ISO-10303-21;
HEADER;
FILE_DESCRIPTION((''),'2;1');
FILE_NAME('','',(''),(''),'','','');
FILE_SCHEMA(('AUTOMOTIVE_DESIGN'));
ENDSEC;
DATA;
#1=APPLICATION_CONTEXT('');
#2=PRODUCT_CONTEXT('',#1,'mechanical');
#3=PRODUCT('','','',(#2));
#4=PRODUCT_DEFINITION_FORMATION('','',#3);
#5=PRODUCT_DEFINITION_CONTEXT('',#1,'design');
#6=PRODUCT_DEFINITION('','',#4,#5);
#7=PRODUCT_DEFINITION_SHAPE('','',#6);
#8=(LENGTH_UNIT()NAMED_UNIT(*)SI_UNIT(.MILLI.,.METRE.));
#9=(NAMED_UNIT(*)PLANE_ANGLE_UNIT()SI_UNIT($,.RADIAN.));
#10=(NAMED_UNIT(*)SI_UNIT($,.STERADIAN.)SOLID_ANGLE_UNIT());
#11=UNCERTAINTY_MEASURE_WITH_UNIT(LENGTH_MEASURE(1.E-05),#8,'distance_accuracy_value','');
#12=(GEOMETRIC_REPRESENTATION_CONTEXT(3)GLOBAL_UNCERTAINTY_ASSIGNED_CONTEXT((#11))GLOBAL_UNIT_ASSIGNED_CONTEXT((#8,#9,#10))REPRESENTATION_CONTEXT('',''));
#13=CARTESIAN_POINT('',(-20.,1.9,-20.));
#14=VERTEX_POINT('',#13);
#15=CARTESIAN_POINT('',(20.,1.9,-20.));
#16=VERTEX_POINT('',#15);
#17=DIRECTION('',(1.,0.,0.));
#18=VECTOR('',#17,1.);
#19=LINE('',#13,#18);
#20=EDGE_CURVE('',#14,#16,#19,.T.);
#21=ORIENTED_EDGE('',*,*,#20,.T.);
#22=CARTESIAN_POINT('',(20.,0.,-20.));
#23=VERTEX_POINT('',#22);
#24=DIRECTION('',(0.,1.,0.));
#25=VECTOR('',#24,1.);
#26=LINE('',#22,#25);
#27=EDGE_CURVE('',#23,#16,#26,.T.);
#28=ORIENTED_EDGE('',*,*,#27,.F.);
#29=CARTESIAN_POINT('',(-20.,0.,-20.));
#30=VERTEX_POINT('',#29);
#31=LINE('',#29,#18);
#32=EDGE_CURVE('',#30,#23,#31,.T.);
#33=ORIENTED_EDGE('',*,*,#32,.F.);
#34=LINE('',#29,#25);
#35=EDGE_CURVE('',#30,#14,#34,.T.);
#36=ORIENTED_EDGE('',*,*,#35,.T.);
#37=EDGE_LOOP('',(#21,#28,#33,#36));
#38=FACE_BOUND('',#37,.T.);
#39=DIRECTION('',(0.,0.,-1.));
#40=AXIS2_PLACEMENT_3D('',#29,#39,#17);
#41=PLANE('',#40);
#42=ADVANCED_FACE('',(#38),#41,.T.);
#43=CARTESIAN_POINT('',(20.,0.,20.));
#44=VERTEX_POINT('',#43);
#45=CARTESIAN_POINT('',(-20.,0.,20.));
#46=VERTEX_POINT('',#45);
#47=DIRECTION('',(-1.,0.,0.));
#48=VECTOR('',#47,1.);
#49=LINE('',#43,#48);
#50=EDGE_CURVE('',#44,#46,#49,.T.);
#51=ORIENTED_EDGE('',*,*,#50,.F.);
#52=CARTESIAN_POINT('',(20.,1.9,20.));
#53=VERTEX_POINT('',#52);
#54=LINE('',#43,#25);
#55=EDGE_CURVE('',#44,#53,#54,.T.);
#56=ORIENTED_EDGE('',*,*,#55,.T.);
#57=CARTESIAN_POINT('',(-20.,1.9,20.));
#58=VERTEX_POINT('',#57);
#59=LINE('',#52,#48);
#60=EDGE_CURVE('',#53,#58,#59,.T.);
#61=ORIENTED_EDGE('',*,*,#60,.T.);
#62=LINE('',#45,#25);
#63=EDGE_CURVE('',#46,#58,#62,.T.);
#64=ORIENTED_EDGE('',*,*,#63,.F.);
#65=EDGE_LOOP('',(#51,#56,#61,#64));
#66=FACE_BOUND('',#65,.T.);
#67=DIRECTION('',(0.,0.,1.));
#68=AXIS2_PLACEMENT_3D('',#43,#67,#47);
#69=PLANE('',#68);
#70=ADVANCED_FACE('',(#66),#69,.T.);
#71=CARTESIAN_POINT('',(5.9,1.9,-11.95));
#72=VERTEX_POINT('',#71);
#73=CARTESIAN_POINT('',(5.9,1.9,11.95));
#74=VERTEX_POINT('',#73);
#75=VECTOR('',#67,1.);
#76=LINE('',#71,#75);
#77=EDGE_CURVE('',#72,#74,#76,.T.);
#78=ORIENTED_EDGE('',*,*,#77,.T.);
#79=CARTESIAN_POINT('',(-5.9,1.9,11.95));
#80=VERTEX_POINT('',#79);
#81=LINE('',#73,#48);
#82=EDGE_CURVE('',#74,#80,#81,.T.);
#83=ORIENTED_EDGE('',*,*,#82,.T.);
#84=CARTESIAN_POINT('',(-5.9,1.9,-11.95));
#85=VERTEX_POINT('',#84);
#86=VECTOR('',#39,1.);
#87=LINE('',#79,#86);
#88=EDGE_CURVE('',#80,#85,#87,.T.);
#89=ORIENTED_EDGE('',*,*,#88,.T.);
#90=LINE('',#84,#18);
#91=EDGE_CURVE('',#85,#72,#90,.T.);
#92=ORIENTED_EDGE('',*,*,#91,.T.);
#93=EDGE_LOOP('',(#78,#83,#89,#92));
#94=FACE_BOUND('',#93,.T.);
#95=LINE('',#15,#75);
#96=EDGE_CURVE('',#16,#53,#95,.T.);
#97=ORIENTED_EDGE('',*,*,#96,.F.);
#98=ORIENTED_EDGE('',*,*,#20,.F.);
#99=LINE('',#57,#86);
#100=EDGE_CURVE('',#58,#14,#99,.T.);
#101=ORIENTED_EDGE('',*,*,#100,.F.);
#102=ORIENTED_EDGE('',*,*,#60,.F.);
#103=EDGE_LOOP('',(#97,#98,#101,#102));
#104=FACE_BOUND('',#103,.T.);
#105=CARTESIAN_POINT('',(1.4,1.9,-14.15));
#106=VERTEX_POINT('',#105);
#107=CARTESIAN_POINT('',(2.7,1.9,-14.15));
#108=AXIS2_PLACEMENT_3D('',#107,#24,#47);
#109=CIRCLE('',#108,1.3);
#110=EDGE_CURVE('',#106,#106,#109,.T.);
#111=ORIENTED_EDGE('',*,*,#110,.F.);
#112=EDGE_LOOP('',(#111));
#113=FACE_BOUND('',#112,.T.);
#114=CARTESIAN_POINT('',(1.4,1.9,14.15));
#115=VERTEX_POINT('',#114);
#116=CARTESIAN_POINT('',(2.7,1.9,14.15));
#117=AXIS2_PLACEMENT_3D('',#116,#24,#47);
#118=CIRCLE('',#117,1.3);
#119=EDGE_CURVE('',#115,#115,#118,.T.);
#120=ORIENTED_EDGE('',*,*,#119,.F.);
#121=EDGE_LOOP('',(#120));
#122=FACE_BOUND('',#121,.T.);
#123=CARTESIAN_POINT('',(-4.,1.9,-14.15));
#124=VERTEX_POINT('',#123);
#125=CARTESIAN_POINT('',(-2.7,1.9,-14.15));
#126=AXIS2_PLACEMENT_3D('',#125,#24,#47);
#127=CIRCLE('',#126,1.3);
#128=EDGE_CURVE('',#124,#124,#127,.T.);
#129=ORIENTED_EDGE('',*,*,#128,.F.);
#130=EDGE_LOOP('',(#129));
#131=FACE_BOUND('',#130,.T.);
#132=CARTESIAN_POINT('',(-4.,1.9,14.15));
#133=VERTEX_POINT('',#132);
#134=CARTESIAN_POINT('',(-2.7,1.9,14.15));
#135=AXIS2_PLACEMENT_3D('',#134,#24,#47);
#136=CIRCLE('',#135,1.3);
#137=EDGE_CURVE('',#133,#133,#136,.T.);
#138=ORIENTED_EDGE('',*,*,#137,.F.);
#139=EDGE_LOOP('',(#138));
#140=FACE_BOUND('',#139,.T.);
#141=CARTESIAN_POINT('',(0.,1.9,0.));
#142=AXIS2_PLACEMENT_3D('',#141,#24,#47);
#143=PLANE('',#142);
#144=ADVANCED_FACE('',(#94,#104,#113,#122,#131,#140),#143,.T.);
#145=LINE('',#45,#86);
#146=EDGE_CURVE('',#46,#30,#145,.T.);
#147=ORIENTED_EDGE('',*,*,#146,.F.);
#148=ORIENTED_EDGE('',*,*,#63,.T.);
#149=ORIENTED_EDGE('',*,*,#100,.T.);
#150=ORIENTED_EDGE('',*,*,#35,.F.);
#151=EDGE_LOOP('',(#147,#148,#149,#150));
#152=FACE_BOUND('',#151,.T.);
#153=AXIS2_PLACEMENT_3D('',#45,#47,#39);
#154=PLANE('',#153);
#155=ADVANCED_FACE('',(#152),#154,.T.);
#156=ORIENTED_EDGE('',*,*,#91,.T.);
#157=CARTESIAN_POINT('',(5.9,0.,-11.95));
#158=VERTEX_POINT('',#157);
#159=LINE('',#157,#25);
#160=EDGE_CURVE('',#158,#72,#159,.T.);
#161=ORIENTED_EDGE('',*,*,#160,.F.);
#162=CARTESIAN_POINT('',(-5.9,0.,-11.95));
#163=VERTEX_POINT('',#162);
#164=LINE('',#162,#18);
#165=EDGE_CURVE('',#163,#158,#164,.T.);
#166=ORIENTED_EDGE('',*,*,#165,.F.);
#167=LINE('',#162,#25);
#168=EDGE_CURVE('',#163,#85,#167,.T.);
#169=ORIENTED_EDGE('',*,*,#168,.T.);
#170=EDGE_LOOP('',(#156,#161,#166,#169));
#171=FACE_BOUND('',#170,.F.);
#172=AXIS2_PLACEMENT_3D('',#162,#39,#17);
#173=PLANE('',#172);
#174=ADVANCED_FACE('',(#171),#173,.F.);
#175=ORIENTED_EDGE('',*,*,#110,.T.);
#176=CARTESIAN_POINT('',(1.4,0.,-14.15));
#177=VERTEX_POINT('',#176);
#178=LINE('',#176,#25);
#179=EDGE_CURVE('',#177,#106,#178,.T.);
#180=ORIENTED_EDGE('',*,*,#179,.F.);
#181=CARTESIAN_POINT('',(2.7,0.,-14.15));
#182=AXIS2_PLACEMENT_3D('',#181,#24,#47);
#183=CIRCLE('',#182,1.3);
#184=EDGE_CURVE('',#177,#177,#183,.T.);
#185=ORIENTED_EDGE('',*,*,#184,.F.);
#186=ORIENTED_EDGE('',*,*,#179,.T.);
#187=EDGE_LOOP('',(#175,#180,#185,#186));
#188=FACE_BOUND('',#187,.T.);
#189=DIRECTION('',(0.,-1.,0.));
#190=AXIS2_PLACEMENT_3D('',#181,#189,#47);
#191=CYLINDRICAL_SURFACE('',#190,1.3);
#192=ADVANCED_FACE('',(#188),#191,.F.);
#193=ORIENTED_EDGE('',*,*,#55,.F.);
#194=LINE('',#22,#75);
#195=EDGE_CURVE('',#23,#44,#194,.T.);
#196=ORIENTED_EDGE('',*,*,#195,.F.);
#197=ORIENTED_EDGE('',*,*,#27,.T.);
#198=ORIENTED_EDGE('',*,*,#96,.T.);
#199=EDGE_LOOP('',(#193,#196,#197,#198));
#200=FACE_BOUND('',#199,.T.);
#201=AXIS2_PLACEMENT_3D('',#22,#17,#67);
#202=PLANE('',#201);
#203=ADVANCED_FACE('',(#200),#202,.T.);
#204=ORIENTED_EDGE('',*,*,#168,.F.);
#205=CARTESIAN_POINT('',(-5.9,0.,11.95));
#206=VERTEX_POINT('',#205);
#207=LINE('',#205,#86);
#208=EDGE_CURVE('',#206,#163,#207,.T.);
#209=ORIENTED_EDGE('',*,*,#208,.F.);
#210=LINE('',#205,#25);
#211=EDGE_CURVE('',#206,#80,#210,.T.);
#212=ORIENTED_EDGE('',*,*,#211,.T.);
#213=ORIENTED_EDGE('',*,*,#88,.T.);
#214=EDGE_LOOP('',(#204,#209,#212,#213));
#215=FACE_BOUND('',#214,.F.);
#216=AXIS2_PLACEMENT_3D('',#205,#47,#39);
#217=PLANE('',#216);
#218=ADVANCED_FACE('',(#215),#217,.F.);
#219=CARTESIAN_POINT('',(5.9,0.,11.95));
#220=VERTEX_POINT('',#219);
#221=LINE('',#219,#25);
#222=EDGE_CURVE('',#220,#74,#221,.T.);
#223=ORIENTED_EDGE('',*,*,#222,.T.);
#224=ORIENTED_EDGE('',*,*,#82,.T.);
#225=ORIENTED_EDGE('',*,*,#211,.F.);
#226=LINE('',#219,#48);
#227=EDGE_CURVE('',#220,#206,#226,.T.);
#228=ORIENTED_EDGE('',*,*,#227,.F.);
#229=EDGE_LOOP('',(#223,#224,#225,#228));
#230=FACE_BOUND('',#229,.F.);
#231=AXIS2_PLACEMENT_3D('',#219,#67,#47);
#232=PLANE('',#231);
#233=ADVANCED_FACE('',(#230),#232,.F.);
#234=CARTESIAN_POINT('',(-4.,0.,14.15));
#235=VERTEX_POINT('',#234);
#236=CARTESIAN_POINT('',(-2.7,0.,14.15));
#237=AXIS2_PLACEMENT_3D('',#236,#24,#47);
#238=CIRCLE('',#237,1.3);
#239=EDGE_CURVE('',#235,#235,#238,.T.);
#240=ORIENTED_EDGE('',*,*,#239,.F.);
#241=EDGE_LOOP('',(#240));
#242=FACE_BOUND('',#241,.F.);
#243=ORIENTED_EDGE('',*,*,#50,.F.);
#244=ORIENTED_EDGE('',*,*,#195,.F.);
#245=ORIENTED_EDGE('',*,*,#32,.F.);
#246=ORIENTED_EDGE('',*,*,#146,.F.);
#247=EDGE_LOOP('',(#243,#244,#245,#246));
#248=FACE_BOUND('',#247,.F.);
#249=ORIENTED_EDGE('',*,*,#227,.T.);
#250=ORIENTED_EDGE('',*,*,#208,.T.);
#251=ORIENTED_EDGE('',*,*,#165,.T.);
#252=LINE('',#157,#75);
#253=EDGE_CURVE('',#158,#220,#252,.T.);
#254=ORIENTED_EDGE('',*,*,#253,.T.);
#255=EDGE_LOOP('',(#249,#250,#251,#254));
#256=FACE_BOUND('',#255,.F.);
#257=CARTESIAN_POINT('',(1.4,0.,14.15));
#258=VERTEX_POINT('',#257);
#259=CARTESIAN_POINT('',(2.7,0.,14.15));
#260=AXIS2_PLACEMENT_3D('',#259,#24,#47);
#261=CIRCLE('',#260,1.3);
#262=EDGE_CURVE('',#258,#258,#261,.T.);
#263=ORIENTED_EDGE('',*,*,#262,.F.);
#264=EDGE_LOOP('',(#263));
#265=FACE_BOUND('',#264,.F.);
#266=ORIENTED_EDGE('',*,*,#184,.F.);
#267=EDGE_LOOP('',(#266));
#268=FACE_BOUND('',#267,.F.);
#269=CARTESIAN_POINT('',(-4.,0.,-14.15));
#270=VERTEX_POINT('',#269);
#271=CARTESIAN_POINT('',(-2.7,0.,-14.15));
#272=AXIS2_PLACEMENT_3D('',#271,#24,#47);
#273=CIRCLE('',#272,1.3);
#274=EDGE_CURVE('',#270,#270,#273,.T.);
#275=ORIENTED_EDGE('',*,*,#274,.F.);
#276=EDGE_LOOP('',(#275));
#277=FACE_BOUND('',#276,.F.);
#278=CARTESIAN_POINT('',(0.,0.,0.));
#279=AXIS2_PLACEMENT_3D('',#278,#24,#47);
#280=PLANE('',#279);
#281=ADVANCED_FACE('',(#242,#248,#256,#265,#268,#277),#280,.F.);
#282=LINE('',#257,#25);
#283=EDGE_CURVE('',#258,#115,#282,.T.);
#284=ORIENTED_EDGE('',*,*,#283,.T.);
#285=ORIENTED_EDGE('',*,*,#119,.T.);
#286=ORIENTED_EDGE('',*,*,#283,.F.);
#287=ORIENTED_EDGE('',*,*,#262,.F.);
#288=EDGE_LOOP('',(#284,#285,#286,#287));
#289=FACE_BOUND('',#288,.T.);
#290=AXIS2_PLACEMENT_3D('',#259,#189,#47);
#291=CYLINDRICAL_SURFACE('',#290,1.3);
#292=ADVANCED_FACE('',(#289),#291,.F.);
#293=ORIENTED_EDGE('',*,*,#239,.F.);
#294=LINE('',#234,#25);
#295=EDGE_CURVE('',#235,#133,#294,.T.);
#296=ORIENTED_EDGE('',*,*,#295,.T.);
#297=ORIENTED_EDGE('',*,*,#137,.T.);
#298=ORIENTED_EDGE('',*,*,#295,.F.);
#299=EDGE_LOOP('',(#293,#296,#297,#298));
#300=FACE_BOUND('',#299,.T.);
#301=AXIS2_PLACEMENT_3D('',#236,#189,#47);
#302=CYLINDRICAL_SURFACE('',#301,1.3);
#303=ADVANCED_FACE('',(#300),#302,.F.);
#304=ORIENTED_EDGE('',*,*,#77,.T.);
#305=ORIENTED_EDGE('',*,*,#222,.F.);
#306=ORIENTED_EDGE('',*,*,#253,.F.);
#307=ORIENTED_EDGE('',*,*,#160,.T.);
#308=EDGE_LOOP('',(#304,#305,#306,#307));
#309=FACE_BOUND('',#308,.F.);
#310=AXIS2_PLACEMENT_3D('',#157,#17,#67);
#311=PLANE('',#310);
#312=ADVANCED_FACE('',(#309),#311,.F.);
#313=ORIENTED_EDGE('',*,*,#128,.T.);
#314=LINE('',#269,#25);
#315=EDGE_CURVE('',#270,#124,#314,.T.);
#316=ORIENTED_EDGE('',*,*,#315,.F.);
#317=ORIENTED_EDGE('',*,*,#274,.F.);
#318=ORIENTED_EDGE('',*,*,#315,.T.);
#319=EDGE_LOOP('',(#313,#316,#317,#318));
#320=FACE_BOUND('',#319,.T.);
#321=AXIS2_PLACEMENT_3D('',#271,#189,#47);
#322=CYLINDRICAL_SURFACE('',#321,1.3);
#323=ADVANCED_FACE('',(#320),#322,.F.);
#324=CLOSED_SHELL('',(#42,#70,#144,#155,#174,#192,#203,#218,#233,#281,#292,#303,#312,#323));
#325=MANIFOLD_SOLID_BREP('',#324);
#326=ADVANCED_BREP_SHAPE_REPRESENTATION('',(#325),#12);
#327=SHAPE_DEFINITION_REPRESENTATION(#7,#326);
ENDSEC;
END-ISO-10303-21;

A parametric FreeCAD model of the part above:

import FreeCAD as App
import Part
import Sketcher

V = App.Vector
Q = App.Units.Quantity

doc = App.newDocument("Part")
body = doc.addObject("PartDesign::Body", "Body")

sketch1 = body.newObject("Sketcher::SketchObject", "Sketch")
sketch1.AttachmentSupport = (doc.getObject("XZ_Plane"), [""])
sketch1.MapMode = "FlatFace"
sketch1.addGeometry([
    Part.LineSegment(V(-20, 20, 0), V(20, 20, 0)),
    Part.LineSegment(V(20, 20, 0), V(20, -20, 0)),
    Part.LineSegment(V(20, -20, 0), V(-20, -20, 0)),
    Part.LineSegment(V(-20, -20, 0), V(-20, 20, 0)),
    Part.Circle(V(2.7, -14.15, 0), V(0, 0, 1), 1.3),
    Part.Circle(V(-2.7, -14.15, 0), V(0, 0, 1), 1.3),
    Part.Circle(V(2.7, 14.15, 0), V(0, 0, 1), 1.3),
    Part.LineSegment(V(5.9, -11.95, 0), V(5.9, 11.95, 0)),
    Part.LineSegment(V(5.9, 11.95, 0), V(-5.9, 11.95, 0)),
    Part.LineSegment(V(-5.9, 11.95, 0), V(-5.9, -11.95, 0)),
    Part.LineSegment(V(-5.9, -11.95, 0), V(5.9, -11.95, 0)),
    Part.Circle(V(-2.7, 14.15, 0), V(0, 0, 1), 1.3),
], False)
sketch1.addConstraint([
    Sketcher.Constraint("Coincident", 0, 2, 1, 1),
    Sketcher.Constraint("Coincident", 1, 2, 2, 1),
    Sketcher.Constraint("Coincident", 2, 2, 3, 1),
    Sketcher.Constraint("Coincident", 3, 2, 0, 1),
    Sketcher.Constraint("Coincident", 7, 2, 8, 1),
    Sketcher.Constraint("Coincident", 8, 2, 9, 1),
    Sketcher.Constraint("Coincident", 9, 2, 10, 1),
    Sketcher.Constraint("Coincident", 10, 2, 7, 1),
    Sketcher.Constraint("Horizontal", 0),
    Sketcher.Constraint("Vertical", 1),
    Sketcher.Constraint("Horizontal", 2),
    Sketcher.Constraint("Vertical", 3),
    Sketcher.Constraint("Vertical", 7),
    Sketcher.Constraint("Horizontal", 8),
    Sketcher.Constraint("Vertical", 9),
    Sketcher.Constraint("Horizontal", 10),
    Sketcher.Constraint("Equal", 4, 5),
    Sketcher.Constraint("Equal", 5, 6),
    Sketcher.Constraint("Equal", 6, 11),
    Sketcher.Constraint("Symmetric", 5, 3, 6, 3, -1, 1),
    Sketcher.Constraint("Symmetric", 4, 3, 11, 3, -1, 1),
    Sketcher.Constraint("Symmetric", 0, 2, 2, 2, -1, 1),
    Sketcher.Constraint("Symmetric", 7, 2, 9, 2, -1, 1),
    Sketcher.Constraint("Symmetric", 4, 3, 5, 3, -2),
    Sketcher.Constraint("Equal", 2, 1),
    Sketcher.Constraint("Diameter", 4, Q("2.6 mm")),
    Sketcher.Constraint("DistanceX", 0, 1, 0, 2, Q("40 mm")),
    Sketcher.Constraint("DistanceX", 8, 2, 8, 1, Q("11.8 mm")),
    Sketcher.Constraint("DistanceY", 7, 1, 7, 2, Q("23.9 mm")),
    Sketcher.Constraint("DistanceX", -1, 1, 4, 3, Q("2.7 mm")),
    Sketcher.Constraint("DistanceY", 4, 3, 6, 3, Q("28.3 mm")),
])
pad1 = body.newObject("PartDesign::Pad", "Pad")
pad1.Profile = sketch1
pad1.Length = 1.9
pad1.Reversed = True

doc.recompute()
